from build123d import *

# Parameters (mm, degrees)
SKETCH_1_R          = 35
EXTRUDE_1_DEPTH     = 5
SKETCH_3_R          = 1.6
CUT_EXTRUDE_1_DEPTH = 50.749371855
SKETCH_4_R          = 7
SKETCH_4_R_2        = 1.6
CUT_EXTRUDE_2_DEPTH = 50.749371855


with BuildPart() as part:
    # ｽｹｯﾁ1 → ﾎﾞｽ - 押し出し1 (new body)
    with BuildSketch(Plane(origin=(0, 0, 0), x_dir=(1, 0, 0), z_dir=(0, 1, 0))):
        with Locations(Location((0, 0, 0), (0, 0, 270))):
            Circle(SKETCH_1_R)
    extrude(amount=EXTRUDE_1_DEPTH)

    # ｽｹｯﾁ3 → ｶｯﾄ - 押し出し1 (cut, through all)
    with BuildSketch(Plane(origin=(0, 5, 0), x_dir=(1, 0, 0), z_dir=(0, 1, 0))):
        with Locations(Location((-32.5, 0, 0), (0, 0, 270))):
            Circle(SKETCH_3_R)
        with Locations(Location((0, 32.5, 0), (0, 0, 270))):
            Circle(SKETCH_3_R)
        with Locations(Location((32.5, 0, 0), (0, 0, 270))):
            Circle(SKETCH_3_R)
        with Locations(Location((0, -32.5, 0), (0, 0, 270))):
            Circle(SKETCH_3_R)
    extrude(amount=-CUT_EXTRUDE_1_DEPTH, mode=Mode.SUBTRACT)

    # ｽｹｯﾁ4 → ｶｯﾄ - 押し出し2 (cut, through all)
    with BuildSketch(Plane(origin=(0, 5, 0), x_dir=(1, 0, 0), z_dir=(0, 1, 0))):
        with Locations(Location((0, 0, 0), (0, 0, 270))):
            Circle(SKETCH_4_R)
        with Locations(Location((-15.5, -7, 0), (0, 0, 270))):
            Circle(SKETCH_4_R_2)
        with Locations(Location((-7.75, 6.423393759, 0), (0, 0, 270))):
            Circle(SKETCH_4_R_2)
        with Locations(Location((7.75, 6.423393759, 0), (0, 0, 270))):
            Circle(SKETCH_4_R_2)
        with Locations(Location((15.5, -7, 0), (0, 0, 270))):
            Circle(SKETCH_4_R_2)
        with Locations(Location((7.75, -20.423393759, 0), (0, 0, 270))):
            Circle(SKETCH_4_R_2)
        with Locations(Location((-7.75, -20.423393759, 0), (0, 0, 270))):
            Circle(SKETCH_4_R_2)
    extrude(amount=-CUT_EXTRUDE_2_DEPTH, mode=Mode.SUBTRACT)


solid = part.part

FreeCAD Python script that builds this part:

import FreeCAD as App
import Part
import Sketcher

V = App.Vector
Q = App.Units.Quantity

doc = App.newDocument("Part")
params = doc.addObject("Spreadsheet::Sheet", "Params")
for row, (alias, value) in enumerate([
    ("sketch1_diameter", "70 mm"),
    ("pad1_length", "5 mm"),
    ("sketch2_diameter", "3.2 mm"),
    ("sketch3_diameter", "14 mm"),
    ("sketch3_diameter2", "3.2 mm"),
], start=1):
    params.set(f"A{row}", alias)
    params.set(f"B{row}", "=" + value)
    params.setAlias(f"B{row}", alias)

body = doc.addObject("PartDesign::Body", "Body")

# Sketch on XZ plane
sketch1 = body.newObject("Sketcher::SketchObject", "Sketch")
sketch1.AttachmentSupport = (doc.getObject("XZ_Plane"), [""])
sketch1.MapMode = "FlatFace"
sketch1.addGeometry(Part.Circle(V(0, 0, 0), V(0, 0, 1), 35), False)
sketch1.addConstraint(Sketcher.Constraint("Coincident", 0, 3, -1, 1))
sketch1.addConstraint(Sketcher.Constraint("Diameter", 0, Q("70 mm")))
sketch1.setExpression("Constraints[1]", "Params.sketch1_diameter")
pad1 = body.newObject("PartDesign::Pad", "Pad")
pad1.Profile = sketch1
pad1.setExpression("Length", "Params.pad1_length")
pad1.Reversed = True

# Sketch on XZ plane
sketch2 = body.newObject("Sketcher::SketchObject", "Sketch001")
sketch2.AttachmentSupport = (doc.getObject("XZ_Plane"), [""])
sketch2.MapMode = "FlatFace"
sketch2.AttachmentOffset = App.Placement(V(0, 0, -5), App.Rotation())
sketch2.addGeometry(Part.Circle(V(-32.5, 0, 0), V(0, 0, 1), 1.6), False)
sketch2.addGeometry(Part.Circle(V(0, -32.5, 0), V(0, 0, 1), 1.6), False)
sketch2.addGeometry(Part.Circle(V(32.5, 0, 0), V(0, 0, 1), 1.6), False)
sketch2.addGeometry(Part.Circle(V(0, 32.5, 0), V(0, 0, 1), 1.6), False)
sketch2.addConstraint(Sketcher.Constraint("Equal", 0, 1))
sketch2.addConstraint(Sketcher.Constraint("Equal", 1, 2))
sketch2.addConstraint(Sketcher.Constraint("Equal", 2, 3))
sketch2.addConstraint(Sketcher.Constraint("Symmetric", 0, 3, 2, 3, -1, 1))
sketch2.addConstraint(Sketcher.Constraint("Symmetric", 1, 3, 3, 3, -1, 1))
sketch2.addConstraint(Sketcher.Constraint("PointOnObject", 0, 3, -1))
sketch2.addConstraint(Sketcher.Constraint("PointOnObject", 1, 3, -2))
sketch2.addConstraint(Sketcher.Constraint("Diameter", 0, Q("3.2 mm")))
sketch2.addConstraint(Sketcher.Constraint("DistanceX", 0, 3, 2, 3, Q("65 mm")))
sketch2.addConstraint(Sketcher.Constraint("DistanceY", 1, 3, 3, 3, Q("65 mm")))
sketch2.setExpression("Constraints[7]", "Params.sketch2_diameter")
pocket1 = body.newObject("PartDesign::Pocket", "Pocket")
pocket1.Profile = sketch2
pocket1.Type = "ThroughAll"
pocket1.Reversed = True

# Sketch on XZ plane
sketch3 = body.newObject("Sketcher::SketchObject", "Sketch002")
sketch3.AttachmentSupport = (doc.getObject("XZ_Plane"), [""])
sketch3.MapMode = "FlatFace"
sketch3.AttachmentOffset = App.Placement(V(0, 0, -5), App.Rotation())
sketch3.addGeometry(Part.Circle(V(0, 0, 0), V(0, 0, 1), 7), False)
sketch3.addGeometry(Part.Circle(V(-15.5, 7, 0), V(0, 0, 1), 1.6), False)
sketch3.addGeometry(Part.Circle(V(-7.8, -6.4, 0), V(0, 0, 1), 1.6), False)
sketch3.addGeometry(Part.Circle(V(7.8, -6.4, 0), V(0, 0, 1), 1.6), False)
sketch3.addGeometry(Part.Circle(V(15.5, 7, 0), V(0, 0, 1), 1.6), False)
sketch3.addGeometry(Part.Circle(V(7.8, 20.4, 0), V(0, 0, 1), 1.6), False)
sketch3.addGeometry(Part.Circle(V(-7.8, 20.4, 0), V(0, 0, 1), 1.6), False)
sketch3.addConstraint(Sketcher.Constraint("Coincident", 0, 3, -1, 1))
sketch3.addConstraint(Sketcher.Constraint("Equal", 1, 2))
sketch3.addConstraint(Sketcher.Constraint("Equal", 2, 3))
sketch3.addConstraint(Sketcher.Constraint("Equal", 3, 4))
sketch3.addConstraint(Sketcher.Constraint("Equal", 4, 5))
sketch3.addConstraint(Sketcher.Constraint("Equal", 5, 6))
sketch3.addConstraint(Sketcher.Constraint("Symmetric", 2, 3, 3, 3, -2))
sketch3.addConstraint(Sketcher.Constraint("Symmetric", 1, 3, 4, 3, -2))
sketch3.addConstraint(Sketcher.Constraint("Symmetric", 5, 3, 6, 3, -2))
sketch3.addConstraint(Sketcher.Constraint("Vertical", 3, 3, 5, 3))
sketch3.addConstraint(Sketcher.Constraint("Diameter", 0, Q("14 mm")))
sketch3.addConstraint(Sketcher.Constraint("Diameter", 1, Q("3.2 mm")))
sketch3.addConstraint(Sketcher.Constraint("DistanceY", -1, 1, 1, 3, Q("7 mm")))
sketch3.addConstraint(Sketcher.Constraint("DistanceX", 1, 3, 4, 3, Q("31 mm")))
sketch3.addConstraint(Sketcher.Constraint("DistanceX", 2, 3, 3, 3, Q("15.5 mm")))
sketch3.addConstraint(Sketcher.Constraint("DistanceY", 2, 3, -1, 1, Q("6.423394 mm")))
sketch3.addConstraint(Sketcher.Constraint("DistanceY", -1, 1, 5, 3, Q("20.423394 mm")))
sketch3.setExpression("Constraints[10]", "Params.sketch3_diameter")
sketch3.setExpression("Constraints[11]", "Params.sketch3_diameter2")
pocket2 = body.newObject("PartDesign::Pocket", "Pocket001")
pocket2.Profile = sketch3
pocket2.Type = "ThroughAll"
pocket2.Reversed = True

doc.recompute()
